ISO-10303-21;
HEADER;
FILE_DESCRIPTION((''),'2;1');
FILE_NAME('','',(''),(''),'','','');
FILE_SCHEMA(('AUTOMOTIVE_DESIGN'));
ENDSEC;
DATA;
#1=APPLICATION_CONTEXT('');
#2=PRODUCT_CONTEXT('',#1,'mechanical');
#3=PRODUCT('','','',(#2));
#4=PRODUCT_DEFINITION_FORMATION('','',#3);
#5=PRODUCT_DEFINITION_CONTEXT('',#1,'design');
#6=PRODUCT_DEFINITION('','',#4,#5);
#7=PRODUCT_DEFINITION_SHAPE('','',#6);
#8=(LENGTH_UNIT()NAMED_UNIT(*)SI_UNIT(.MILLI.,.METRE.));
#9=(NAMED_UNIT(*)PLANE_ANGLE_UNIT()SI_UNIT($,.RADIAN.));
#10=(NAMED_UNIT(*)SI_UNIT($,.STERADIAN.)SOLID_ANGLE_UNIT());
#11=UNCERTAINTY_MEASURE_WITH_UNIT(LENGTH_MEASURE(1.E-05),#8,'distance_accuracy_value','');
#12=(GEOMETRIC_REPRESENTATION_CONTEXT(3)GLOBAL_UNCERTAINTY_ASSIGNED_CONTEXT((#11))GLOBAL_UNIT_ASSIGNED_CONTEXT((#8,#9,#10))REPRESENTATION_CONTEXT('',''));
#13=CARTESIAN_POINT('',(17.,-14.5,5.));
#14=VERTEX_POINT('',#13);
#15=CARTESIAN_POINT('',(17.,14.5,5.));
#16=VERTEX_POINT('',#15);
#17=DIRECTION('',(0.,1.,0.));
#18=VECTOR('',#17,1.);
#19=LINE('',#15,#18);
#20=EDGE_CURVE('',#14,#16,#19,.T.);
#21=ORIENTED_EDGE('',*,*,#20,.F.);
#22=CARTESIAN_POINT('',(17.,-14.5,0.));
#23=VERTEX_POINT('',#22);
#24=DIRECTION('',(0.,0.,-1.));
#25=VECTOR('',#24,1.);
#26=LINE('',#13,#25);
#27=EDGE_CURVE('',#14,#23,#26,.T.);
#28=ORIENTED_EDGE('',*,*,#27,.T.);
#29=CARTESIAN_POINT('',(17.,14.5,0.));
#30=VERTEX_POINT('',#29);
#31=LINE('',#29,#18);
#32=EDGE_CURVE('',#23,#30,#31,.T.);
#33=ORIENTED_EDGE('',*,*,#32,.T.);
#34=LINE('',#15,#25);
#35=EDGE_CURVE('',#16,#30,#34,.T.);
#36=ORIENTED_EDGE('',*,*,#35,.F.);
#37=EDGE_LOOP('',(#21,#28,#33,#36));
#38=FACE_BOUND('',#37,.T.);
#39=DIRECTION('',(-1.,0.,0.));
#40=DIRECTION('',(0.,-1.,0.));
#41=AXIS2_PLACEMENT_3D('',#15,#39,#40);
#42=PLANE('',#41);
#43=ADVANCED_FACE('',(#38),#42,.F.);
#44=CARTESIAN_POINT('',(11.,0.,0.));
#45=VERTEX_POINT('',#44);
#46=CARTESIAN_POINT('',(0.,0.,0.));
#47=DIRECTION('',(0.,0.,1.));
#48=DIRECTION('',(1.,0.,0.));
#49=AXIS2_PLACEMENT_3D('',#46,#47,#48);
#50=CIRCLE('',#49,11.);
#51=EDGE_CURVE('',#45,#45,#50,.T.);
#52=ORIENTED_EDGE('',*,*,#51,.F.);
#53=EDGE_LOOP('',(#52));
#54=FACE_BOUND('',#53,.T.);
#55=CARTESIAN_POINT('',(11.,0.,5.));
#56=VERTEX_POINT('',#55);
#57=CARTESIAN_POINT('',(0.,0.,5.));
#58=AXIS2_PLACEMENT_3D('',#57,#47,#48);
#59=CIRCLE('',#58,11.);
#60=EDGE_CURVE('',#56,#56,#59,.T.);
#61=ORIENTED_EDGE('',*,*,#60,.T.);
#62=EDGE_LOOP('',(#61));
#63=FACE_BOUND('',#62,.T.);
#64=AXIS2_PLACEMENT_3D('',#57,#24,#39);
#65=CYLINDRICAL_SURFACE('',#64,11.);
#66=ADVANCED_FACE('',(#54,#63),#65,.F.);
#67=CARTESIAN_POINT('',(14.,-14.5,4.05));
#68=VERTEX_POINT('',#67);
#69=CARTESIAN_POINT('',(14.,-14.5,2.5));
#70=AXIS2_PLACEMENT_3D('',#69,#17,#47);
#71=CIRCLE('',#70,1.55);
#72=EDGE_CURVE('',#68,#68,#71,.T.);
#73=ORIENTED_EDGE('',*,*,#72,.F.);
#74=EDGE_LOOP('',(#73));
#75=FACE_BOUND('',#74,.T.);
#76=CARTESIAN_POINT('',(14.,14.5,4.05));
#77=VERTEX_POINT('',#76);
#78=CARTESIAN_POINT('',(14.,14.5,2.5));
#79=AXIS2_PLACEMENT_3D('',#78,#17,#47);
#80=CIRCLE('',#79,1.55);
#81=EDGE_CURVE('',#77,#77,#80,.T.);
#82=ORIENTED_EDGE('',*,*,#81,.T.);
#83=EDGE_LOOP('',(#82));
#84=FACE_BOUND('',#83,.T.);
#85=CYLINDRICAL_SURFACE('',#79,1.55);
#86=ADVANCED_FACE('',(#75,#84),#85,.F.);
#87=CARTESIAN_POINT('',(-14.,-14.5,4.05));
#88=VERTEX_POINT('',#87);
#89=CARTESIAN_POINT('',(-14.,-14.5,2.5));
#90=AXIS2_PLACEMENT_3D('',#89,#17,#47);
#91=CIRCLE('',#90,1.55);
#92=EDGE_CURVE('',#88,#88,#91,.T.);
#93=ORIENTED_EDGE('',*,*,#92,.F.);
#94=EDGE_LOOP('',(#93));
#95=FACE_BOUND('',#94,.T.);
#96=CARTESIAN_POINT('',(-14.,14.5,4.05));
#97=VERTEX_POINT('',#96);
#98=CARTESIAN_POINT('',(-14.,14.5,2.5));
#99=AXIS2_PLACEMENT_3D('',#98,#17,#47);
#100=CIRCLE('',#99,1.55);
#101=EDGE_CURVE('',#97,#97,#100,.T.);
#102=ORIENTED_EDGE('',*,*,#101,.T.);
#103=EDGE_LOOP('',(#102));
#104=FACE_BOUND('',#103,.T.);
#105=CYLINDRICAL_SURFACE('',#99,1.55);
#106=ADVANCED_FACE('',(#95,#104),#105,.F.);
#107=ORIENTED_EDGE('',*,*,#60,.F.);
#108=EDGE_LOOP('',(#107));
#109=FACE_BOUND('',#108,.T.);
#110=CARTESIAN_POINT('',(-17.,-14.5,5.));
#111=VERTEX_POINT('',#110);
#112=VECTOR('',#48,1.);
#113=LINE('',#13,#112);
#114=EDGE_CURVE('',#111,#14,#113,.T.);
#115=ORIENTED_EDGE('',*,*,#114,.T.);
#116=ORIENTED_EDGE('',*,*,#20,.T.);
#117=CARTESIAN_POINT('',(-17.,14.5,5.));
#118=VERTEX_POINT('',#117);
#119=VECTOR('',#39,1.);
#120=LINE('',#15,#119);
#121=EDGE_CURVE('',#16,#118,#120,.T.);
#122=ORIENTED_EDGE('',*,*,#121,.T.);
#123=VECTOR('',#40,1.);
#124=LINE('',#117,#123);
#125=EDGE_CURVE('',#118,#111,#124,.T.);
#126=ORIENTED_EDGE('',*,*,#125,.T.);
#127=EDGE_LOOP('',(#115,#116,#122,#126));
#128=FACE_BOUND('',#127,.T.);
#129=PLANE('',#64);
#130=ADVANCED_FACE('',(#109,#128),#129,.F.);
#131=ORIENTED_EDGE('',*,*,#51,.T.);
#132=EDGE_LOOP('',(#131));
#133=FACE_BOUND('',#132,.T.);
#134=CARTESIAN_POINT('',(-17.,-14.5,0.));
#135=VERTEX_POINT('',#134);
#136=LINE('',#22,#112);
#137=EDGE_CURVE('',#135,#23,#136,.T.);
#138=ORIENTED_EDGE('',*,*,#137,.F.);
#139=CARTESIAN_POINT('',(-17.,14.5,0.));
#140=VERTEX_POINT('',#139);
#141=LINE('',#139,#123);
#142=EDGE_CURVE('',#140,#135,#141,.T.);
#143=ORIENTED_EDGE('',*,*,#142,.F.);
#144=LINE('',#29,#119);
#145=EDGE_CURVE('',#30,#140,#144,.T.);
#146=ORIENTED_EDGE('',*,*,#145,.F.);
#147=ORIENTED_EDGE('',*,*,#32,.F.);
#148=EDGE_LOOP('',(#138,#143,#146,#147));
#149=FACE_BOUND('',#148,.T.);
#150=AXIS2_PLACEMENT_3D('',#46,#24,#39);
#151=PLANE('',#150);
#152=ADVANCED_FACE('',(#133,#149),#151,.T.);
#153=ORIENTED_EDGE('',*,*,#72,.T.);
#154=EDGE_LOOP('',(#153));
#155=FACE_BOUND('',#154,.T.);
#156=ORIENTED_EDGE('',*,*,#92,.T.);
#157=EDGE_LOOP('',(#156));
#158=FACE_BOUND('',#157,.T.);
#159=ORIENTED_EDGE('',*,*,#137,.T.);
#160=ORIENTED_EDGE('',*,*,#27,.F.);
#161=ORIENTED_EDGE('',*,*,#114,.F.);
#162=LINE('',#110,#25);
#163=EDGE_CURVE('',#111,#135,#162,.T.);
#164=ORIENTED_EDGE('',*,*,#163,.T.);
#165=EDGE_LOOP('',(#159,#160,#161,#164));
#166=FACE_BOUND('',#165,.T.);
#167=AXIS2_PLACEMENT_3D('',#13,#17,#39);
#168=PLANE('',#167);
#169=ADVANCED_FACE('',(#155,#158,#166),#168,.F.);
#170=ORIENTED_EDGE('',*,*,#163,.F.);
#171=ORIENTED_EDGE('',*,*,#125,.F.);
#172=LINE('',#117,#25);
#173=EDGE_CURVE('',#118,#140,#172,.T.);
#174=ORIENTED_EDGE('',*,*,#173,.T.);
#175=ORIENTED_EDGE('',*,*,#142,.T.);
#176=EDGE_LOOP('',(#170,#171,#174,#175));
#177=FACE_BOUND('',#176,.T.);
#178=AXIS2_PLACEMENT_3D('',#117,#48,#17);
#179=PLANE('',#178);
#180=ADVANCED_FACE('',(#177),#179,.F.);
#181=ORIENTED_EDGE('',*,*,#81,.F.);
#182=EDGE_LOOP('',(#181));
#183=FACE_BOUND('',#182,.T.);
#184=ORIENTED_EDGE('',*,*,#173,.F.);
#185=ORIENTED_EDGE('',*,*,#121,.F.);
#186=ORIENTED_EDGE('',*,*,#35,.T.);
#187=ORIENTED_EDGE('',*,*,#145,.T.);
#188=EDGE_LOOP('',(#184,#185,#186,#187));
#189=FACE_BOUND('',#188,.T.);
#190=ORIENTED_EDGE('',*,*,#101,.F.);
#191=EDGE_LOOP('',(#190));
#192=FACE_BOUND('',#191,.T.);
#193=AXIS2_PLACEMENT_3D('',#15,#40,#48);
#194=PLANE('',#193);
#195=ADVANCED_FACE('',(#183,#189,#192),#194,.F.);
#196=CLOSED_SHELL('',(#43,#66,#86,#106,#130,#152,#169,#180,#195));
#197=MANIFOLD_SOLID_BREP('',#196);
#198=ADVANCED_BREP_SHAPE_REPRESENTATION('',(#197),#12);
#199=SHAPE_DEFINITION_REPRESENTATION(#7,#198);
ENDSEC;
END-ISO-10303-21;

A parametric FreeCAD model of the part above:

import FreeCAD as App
import Part
import Sketcher
from FreeCAD import Vector
Q = App.Units.Quantity


def add_polygon(sketch, points):
    """Adds a closed chain of lines whose ends are joined by coincident constraints."""
    first, n = sketch.GeometryCount, len(points)
    for a, b in zip(points, points[1:] + points[:1]):
        sketch.addGeometry(Part.LineSegment(App.Vector(*a, 0), App.Vector(*b, 0)), False)
    for i in range(n):
        sketch.addConstraint(Sketcher.Constraint("Coincident", first + i, 2, first + (i + 1) % n, 1))

doc = App.newDocument("Part")
body = doc.addObject("PartDesign::Body", "Body")

# Sketch on XY plane
sketch1 = body.newObject("Sketcher::SketchObject", "Sketch")
sketch1.AttachmentSupport = (doc.getObject("XY_Plane"), [""])
sketch1.MapMode = "FlatFace"
add_polygon(sketch1, [(-17, 14), (-17, -14), (17, -14), (17, 14)])  # lines 0-3
sketch1.addGeometry(Part.Circle(Vector(0, 0, 0), Vector(0, 0, 1), 11), False)  # 4
sketch1.addConstraint(Sketcher.Constraint("Vertical", 0))
sketch1.addConstraint(Sketcher.Constraint("Horizontal", 1))
sketch1.addConstraint(Sketcher.Constraint("Vertical", 2))
sketch1.addConstraint(Sketcher.Constraint("Horizontal", 3))
sketch1.addConstraint(Sketcher.Constraint("Coincident", 4, 3, -1, 1))
sketch1.addConstraint(Sketcher.Constraint("Symmetric", 0, 2, 2, 2, -1, 1))
sketch1.addConstraint(Sketcher.Constraint("Diameter", 4, Q("22 mm")))
sketch1.addConstraint(Sketcher.Constraint("DistanceX", 1, 1, 1, 2, Q("34 mm")))
sketch1.addConstraint(Sketcher.Constraint("DistanceY", 0, 2, 0, 1, Q("29 mm")))
pad1 = body.newObject("PartDesign::Pad", "Pad")
pad1.Profile = sketch1
pad1.Length = 5

# Sketch on XZ plane
sketch2 = body.newObject("Sketcher::SketchObject", "Sketch001")
sketch2.AttachmentSupport = (doc.getObject("XZ_Plane"), [""])
sketch2.MapMode = "FlatFace"
sketch2.AttachmentOffset = App.Placement(Vector(0, 0, -14.5), App.Rotation())
sketch2.addGeometry(Part.Circle(Vector(-14, 2.5, 0), Vector(0, 0, 1), 1.6), False)
sketch2.addGeometry(Part.Circle(Vector(14, 2.5, 0), Vector(0, 0, 1), 1.6), False)
sketch2.addConstraint(Sketcher.Constraint("Equal", 0, 1))
sketch2.addConstraint(Sketcher.Constraint("Symmetric", 0, 3, 1, 3, -2))
sketch2.addConstraint(Sketcher.Constraint("Diameter", 0, Q("3.1 mm")))
sketch2.addConstraint(Sketcher.Constraint("DistanceX", 0, 3, -1, 1, Q("14 mm")))
sketch2.addConstraint(Sketcher.Constraint("DistanceY", -1, 1, 0, 3, Q("2.5 mm")))
doc.recompute()
hole = body.newObject("PartDesign::Hole", "Hole")
hole.Profile = sketch2
hole.ThreadType = "None"
hole.Diameter = 3.1
hole.DepthType = "ThroughAll"
hole.Reversed = True

doc.recompute()
